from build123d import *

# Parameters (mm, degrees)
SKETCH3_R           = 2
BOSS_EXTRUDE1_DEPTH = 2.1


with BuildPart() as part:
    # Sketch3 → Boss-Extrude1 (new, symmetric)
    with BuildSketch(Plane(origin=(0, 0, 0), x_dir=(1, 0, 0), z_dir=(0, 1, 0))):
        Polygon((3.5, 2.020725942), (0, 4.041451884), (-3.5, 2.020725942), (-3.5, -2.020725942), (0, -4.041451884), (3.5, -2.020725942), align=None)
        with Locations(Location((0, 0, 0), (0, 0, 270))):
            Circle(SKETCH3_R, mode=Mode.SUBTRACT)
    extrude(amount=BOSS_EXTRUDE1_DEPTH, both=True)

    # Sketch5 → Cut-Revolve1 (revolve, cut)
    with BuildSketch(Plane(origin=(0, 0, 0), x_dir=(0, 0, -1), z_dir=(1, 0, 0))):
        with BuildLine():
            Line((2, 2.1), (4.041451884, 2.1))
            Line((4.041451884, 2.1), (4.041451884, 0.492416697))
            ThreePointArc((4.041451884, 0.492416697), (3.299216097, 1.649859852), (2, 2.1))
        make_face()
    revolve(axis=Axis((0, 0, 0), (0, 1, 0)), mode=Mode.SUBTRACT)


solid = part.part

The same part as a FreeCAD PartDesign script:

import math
import FreeCAD as App
import Part
import Sketcher

V = App.Vector
Q = App.Units.Quantity


def add_polygon(sketch, points):
    """Adds a closed chain of lines whose ends are joined by coincident constraints."""
    first, n = sketch.GeometryCount, len(points)
    for a, b in zip(points, points[1:] + points[:1]):
        sketch.addGeometry(Part.LineSegment(App.Vector(*a, 0), App.Vector(*b, 0)), False)
    for i in range(n):
        sketch.addConstraint(Sketcher.Constraint("Coincident", first + i, 2, first + (i + 1) % n, 1))

doc = App.newDocument("Part")
params = doc.addObject("Spreadsheet::Sheet", "Params")
for row, (alias, value) in enumerate([
    ("sketch1_diameter", "4 mm"),
    ("pad1_length", "4.2 mm"),
    ("sketch2_radius", "2.1 mm"),
    ("groove_angle", "360 deg"),
], start=1):
    params.set(f"A{row}", alias)
    params.set(f"B{row}", "=" + value)
    params.setAlias(f"B{row}", alias)

body = doc.addObject("PartDesign::Body", "Body")

# Sketch on XZ plane
sketch1 = body.newObject("Sketcher::SketchObject", "Sketch")
sketch1.AttachmentSupport = (doc.getObject("XZ_Plane"), [""])
sketch1.MapMode = "FlatFace"
add_polygon(sketch1, [(3.5, -2.020726), (0, -4.041452), (-3.5, -2.020726), (-3.5, 2.020726), (0, 4.041452), (3.5, 2.020726)])  # lines 0-5
sketch1.addGeometry(Part.Circle(V(0, 0, 0), V(0, 0, 1), 2), False)  # 6
sketch1.addConstraint(Sketcher.Constraint("Vertical", 2))
sketch1.addConstraint(Sketcher.Constraint("Vertical", 5))
sketch1.addConstraint(Sketcher.Constraint("Coincident", 6, 3, -1, 1))
sketch1.addConstraint(Sketcher.Constraint("Symmetric", 0, 2, 3, 2, -1, 1))
sketch1.addConstraint(Sketcher.Constraint("Symmetric", 1, 2, 4, 2, -1, 1))
sketch1.addConstraint(Sketcher.Constraint("PointOnObject", 0, 2, -2))
sketch1.addConstraint(Sketcher.Constraint("Parallel", 0, 3))
sketch1.addConstraint(Sketcher.Constraint("Horizontal", 2, 2, 4, 2))
sketch1.addConstraint(Sketcher.Constraint("Diameter", 6, 4.0))
sketch1.addConstraint(Sketcher.Constraint("Angle", 0, Q("-150 deg")))
sketch1.addConstraint(Sketcher.Constraint("DistanceX", 2, 2, 4, 2, 7.0))
sketch1.addConstraint(Sketcher.Constraint("DistanceY", 2, 1, 2, 2, 4.041452))
sketch1.setExpression("Constraints[14]", "Params.sketch1_diameter")
pad1 = body.newObject("PartDesign::Pad", "Pad")
pad1.Profile = sketch1
pad1.setExpression("Length", "Params.pad1_length")
pad1.Midplane = True

# Sketch on YZ plane
sketch2 = body.newObject("Sketcher::SketchObject", "Sketch001")
sketch2.AttachmentSupport = (doc.getObject("YZ_Plane"), [""])
sketch2.MapMode = "FlatFace"
sketch2.addGeometry(Part.LineSegment(V(2.1, -4.041452, 0), V(2.1, -2, 0)), False)
sketch2.addGeometry(Part.ArcOfCircle(Part.Circle(V(0, -2, 0), V(0, 0, 1), 2.1), math.radians(-76.438783), math.radians(0)), False)
sketch2.addGeometry(Part.LineSegment(V(0.492417, -4.041452, 0), V(2.1, -4.041452, 0)), False)
sketch2.addConstraint(Sketcher.Constraint("Tangent", 0, 2, 1, 2))
sketch2.addConstraint(Sketcher.Constraint("Coincident", 1, 1, 2, 1))
sketch2.addConstraint(Sketcher.Constraint("Coincident", 2, 2, 0, 1))
sketch2.addConstraint(Sketcher.Constraint("Vertical", 0))
sketch2.addConstraint(Sketcher.Constraint("Horizontal", 2))
sketch2.addConstraint(Sketcher.Constraint("PointOnObject", 1, 3, -2))
sketch2.addConstraint(Sketcher.Constraint("Radius", 1, 2.1))
sketch2.addConstraint(Sketcher.Constraint("DistanceY", 1, 3, -1, 1, 2.0))
sketch2.addConstraint(Sketcher.Constraint("DistanceY", 0, 1, 0, 2, 2.041452))
sketch2.setExpression("Constraints[6]", "Params.sketch2_radius")
groove = body.newObject("PartDesign::Groove", "Groove")
groove.Profile = sketch2
groove.ReferenceAxis = (sketch2, ["H_Axis"])
groove.setExpression("Angle", "Params.groove_angle")

doc.recompute()
